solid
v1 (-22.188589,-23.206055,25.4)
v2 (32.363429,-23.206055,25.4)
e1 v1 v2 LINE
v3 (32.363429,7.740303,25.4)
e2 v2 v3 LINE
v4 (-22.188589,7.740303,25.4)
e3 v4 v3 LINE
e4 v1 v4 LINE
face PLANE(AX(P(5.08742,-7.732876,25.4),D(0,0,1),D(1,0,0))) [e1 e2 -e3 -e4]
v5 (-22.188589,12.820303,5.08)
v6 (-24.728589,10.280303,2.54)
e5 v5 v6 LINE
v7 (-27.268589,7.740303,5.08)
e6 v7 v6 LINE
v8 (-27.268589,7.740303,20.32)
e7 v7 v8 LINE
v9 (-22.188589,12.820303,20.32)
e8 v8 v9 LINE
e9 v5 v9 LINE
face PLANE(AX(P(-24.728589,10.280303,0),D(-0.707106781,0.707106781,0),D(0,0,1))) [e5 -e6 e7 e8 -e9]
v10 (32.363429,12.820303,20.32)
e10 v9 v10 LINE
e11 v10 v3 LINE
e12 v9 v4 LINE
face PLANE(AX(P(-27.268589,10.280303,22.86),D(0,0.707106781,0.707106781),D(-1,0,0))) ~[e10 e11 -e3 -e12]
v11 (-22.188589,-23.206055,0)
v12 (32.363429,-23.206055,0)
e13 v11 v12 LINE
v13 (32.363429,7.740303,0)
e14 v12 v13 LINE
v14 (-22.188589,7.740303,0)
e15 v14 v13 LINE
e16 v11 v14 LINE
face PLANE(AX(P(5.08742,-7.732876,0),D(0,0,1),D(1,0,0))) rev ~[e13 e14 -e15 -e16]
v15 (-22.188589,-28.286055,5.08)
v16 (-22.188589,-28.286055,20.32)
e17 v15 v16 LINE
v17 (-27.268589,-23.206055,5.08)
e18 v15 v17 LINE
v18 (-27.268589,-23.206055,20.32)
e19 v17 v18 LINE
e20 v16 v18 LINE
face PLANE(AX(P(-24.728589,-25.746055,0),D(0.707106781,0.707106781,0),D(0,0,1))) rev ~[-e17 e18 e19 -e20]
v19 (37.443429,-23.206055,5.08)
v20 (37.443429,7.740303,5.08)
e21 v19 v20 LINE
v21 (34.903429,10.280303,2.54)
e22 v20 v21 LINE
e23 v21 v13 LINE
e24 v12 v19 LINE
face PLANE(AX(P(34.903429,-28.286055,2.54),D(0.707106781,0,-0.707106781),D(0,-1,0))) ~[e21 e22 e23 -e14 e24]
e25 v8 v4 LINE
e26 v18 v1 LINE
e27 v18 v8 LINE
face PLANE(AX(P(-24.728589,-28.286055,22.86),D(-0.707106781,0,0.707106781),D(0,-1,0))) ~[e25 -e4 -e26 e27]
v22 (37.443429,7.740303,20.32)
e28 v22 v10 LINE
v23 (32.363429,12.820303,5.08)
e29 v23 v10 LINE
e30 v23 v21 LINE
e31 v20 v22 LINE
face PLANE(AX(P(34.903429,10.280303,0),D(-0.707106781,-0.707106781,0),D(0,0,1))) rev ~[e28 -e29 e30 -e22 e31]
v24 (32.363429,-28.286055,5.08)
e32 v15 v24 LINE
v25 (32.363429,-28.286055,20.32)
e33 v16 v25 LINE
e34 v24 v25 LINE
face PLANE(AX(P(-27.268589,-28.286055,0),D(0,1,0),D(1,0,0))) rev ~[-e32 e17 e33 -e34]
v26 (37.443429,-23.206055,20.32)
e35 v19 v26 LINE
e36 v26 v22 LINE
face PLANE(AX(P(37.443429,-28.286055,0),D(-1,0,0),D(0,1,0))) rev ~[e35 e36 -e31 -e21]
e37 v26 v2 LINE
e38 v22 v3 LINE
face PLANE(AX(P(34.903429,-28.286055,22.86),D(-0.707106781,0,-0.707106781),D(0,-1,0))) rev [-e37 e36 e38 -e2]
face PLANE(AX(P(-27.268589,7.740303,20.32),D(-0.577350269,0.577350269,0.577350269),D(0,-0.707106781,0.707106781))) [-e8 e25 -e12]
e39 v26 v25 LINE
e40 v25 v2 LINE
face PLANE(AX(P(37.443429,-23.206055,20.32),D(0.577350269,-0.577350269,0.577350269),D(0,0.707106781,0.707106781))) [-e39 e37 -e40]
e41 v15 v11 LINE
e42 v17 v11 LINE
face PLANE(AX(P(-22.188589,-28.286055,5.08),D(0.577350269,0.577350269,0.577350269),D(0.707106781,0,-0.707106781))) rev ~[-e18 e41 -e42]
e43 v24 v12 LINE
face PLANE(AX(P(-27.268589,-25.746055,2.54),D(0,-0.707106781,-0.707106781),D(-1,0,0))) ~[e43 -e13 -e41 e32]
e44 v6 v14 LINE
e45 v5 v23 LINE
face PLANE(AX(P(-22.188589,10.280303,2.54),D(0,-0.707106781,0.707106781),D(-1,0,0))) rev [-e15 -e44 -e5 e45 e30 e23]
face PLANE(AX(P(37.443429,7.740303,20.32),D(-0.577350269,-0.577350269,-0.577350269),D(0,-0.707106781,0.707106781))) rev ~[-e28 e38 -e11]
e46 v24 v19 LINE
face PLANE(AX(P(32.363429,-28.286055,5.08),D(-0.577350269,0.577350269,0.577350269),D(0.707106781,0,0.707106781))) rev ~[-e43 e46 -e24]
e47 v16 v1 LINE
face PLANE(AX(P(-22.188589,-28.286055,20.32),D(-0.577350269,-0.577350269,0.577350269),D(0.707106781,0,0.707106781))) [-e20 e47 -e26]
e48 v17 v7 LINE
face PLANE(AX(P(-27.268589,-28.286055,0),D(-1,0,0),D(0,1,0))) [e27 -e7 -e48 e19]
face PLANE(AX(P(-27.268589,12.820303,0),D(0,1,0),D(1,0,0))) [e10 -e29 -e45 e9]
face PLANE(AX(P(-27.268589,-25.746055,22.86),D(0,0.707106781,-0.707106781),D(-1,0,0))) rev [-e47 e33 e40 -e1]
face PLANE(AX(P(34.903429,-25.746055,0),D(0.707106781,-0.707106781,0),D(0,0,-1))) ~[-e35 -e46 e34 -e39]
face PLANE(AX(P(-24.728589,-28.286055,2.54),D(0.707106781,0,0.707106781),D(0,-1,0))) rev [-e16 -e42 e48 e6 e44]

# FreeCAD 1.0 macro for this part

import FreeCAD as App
import Part
import Sketcher
Q = App.Units.Quantity


def edges_at(feature, points):
    """Names of the edges that pass closest to the given points."""
    edges = feature.Shape.Edges
    near = lambda p: min(range(len(edges)), key=lambda i: edges[i].distToShape(Part.Vertex(*p))[0])
    return sorted({f"Edge{near(p) + 1}" for p in points})


def add_polygon(sketch, points):
    """Adds a closed chain of lines whose ends are joined by coincident constraints."""
    first, n = sketch.GeometryCount, len(points)
    for a, b in zip(points, points[1:] + points[:1]):
        sketch.addGeometry(Part.LineSegment(App.Vector(*a, 0), App.Vector(*b, 0)), False)
    for i in range(n):
        sketch.addConstraint(Sketcher.Constraint("Coincident", first + i, 2, first + (i + 1) % n, 1))

doc = App.newDocument("Part")
body = doc.addObject("PartDesign::Body", "Body")

sketch1 = body.newObject("Sketcher::SketchObject", "Sketch")
sketch1.AttachmentSupport = (doc.getObject("XY_Plane"), [""])
sketch1.MapMode = "FlatFace"
add_polygon(sketch1, [(-27, 13), (-27, -28), (37, -28), (37, 13)])
sketch1.addConstraint([
    Sketcher.Constraint("Vertical", 0),
    Sketcher.Constraint("Horizontal", 1),
    Sketcher.Constraint("Vertical", 2),
    Sketcher.Constraint("Horizontal", 3),
    Sketcher.Constraint("DistanceX", 1, 1, 1, 2, 64.712018),
    Sketcher.Constraint("DistanceY", 0, 2, 0, 1, 41.106358),
    Sketcher.Constraint("DistanceX", 0, 2, -1, 1, 27.268589),
    Sketcher.Constraint("DistanceY", 0, 2, -1, 1, 28.286055),
])
pad1 = body.newObject("PartDesign::Pad", "Pad")
pad1.Profile = sketch1
pad1.Length = Q("1 in")
doc.recompute()

chamfer = body.newObject("PartDesign::Chamfer", "Chamfer")
chamfer.Base = (pad1, edges_at(pad1, [
    (5.087, 12.82, 25.4),
    (37.443, -7.733, 0),
    (37.443, 12.82, 12.7),
    (-27.269, 12.82, 12.7),
    (-27.269, -7.733, 25.4),
    (-27.269, -7.733, 0),
    (-27.269, -28.286, 12.7),
    (5.087, -28.286, 0),
    (5.087, -28.286, 25.4),
    (37.443, -28.286, 12.7),
    (37.443, -7.733, 25.4),
]))
chamfer.Size = Q("0.2 in")
doc.recompute()

chamfer2 = body.newObject("PartDesign::Chamfer", "Chamfer001")
chamfer2.Base = (chamfer, edges_at(chamfer, [(5.087, 12.82, 0)]))
chamfer2.Size = Q("0.2 in")

doc.recompute()
